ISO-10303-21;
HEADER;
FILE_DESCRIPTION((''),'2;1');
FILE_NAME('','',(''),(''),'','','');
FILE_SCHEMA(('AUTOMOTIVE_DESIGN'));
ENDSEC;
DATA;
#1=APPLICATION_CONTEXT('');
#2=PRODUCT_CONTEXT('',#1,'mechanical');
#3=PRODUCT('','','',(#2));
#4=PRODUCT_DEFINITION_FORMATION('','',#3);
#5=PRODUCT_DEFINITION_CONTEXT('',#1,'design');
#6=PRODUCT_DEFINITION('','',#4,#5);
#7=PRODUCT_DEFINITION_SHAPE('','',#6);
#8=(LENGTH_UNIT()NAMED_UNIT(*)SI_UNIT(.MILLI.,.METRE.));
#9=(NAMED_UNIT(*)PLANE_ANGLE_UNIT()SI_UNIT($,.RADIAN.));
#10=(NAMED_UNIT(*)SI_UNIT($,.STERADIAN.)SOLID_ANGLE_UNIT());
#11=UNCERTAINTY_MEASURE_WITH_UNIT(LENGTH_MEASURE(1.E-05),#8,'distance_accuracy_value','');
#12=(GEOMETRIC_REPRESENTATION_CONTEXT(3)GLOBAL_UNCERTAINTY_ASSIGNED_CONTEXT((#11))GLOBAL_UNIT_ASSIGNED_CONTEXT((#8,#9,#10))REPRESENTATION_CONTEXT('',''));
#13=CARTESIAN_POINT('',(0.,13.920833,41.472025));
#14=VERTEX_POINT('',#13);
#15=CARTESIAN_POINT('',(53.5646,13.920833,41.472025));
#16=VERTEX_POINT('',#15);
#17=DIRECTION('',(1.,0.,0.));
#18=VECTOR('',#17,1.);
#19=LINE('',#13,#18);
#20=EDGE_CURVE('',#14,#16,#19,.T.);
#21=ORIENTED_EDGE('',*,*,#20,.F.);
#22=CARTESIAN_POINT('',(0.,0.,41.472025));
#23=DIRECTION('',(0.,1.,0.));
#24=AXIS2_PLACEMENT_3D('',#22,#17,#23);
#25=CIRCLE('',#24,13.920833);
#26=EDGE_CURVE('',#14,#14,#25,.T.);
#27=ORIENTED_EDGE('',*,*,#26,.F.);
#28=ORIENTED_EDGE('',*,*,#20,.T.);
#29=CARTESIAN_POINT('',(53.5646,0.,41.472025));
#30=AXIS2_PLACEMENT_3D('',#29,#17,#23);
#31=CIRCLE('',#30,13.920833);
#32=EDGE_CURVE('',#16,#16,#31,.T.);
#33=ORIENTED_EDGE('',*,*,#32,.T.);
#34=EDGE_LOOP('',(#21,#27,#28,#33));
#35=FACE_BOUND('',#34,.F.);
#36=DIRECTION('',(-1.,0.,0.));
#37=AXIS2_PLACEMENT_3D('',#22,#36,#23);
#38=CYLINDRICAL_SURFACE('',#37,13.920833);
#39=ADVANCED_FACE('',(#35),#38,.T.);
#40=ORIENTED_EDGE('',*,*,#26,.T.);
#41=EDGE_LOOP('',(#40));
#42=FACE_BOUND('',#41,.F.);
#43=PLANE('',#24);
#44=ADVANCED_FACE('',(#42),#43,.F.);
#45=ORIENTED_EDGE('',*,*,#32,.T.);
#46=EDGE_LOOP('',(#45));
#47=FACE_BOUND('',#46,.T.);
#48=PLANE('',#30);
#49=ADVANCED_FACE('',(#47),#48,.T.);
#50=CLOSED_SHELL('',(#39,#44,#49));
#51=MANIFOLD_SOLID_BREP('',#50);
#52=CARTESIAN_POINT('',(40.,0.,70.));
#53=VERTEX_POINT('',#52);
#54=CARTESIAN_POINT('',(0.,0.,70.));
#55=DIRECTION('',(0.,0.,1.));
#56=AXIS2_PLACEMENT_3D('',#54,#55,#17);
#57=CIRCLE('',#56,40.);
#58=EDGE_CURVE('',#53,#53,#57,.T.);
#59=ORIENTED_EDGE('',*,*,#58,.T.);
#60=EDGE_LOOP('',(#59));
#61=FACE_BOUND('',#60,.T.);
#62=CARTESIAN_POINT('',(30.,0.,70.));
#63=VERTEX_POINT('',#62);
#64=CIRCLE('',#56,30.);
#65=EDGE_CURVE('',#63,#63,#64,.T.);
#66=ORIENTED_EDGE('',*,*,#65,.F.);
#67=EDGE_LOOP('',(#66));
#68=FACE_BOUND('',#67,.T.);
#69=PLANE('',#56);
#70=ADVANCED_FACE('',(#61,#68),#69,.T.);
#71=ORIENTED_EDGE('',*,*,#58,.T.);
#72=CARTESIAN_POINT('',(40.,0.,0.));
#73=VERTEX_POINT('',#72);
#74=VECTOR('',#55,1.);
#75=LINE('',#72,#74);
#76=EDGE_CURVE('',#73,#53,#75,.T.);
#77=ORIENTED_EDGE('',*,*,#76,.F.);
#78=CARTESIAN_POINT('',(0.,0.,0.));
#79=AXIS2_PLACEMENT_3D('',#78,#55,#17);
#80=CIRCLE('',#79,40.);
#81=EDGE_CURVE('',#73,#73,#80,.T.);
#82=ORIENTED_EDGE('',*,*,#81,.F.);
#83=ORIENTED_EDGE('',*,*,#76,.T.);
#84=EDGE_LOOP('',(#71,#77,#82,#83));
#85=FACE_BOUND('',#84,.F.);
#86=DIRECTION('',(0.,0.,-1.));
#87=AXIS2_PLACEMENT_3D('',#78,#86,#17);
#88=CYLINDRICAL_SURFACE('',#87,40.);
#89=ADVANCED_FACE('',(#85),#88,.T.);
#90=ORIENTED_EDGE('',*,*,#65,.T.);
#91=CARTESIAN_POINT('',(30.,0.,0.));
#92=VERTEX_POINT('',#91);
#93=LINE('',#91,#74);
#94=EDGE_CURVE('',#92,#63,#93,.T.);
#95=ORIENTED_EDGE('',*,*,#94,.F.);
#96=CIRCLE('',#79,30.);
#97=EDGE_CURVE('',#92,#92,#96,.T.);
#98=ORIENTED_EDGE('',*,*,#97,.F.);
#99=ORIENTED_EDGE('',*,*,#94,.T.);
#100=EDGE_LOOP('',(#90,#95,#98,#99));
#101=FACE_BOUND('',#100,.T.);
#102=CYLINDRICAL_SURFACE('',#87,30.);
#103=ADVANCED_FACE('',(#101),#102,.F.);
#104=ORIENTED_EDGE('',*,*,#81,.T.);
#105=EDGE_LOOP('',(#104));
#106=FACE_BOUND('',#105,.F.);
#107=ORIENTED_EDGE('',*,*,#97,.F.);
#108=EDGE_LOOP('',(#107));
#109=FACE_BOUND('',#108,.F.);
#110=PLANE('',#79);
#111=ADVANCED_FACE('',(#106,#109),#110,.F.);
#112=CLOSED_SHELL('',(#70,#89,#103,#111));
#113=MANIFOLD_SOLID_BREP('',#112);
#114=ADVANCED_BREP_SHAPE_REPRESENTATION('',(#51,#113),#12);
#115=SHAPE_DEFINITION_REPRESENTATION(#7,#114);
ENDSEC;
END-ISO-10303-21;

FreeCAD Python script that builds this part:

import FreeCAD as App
import Part
import Sketcher
Q = App.Units.Quantity

doc = App.newDocument("Part")
body = doc.addObject("PartDesign::Body", "Body")

# Sketch on XY plane
sketch1 = body.newObject("Sketcher::SketchObject", "Sketch")
sketch1.AttachmentSupport = (doc.getObject("XY_Plane"), [""])
sketch1.MapMode = "FlatFace"
sketch1.addGeometry([
    Part.Circle(App.Vector(0, 0, 0), App.Vector(0, 0, 1), 40),
    Part.Circle(App.Vector(0, 0, 0), App.Vector(0, 0, 1), 30),
], False)
sketch1.addConstraint([
    Sketcher.Constraint("Coincident", 0, 3, -1, 1),
    Sketcher.Constraint("Coincident", 1, 3, -1, 1),
    Sketcher.Constraint("Diameter", 0, Q("80 mm")),
    Sketcher.Constraint("Diameter", 1, Q("60 mm")),
])
pad1 = body.newObject("PartDesign::Pad", "Pad")
pad1.Profile = sketch1
pad1.Length = 70
body2 = doc.addObject("PartDesign::Body", "Body001")

# Sketch on YZ plane
sketch2 = body2.newObject("Sketcher::SketchObject", "Sketch001")
sketch2.AttachmentSupport = (doc.getObject("YZ_Plane001"), [""])
sketch2.MapMode = "FlatFace"
sketch2.addGeometry(Part.Circle(App.Vector(0, 41, 0), App.Vector(0, 0, 1), 14), False)
sketch2.addConstraint([
    Sketcher.Constraint("PointOnObject", 0, 3, -2),
    Sketcher.Constraint("Diameter", 0, Q("27.841666 mm")),
    Sketcher.Constraint("DistanceY", -1, 1, 0, 3, Q("41.472025 mm")),
])
pad2 = body2.newObject("PartDesign::Pad", "Pad001")
pad2.Profile = sketch2
pad2.Length = 53.5646

doc.recompute()
